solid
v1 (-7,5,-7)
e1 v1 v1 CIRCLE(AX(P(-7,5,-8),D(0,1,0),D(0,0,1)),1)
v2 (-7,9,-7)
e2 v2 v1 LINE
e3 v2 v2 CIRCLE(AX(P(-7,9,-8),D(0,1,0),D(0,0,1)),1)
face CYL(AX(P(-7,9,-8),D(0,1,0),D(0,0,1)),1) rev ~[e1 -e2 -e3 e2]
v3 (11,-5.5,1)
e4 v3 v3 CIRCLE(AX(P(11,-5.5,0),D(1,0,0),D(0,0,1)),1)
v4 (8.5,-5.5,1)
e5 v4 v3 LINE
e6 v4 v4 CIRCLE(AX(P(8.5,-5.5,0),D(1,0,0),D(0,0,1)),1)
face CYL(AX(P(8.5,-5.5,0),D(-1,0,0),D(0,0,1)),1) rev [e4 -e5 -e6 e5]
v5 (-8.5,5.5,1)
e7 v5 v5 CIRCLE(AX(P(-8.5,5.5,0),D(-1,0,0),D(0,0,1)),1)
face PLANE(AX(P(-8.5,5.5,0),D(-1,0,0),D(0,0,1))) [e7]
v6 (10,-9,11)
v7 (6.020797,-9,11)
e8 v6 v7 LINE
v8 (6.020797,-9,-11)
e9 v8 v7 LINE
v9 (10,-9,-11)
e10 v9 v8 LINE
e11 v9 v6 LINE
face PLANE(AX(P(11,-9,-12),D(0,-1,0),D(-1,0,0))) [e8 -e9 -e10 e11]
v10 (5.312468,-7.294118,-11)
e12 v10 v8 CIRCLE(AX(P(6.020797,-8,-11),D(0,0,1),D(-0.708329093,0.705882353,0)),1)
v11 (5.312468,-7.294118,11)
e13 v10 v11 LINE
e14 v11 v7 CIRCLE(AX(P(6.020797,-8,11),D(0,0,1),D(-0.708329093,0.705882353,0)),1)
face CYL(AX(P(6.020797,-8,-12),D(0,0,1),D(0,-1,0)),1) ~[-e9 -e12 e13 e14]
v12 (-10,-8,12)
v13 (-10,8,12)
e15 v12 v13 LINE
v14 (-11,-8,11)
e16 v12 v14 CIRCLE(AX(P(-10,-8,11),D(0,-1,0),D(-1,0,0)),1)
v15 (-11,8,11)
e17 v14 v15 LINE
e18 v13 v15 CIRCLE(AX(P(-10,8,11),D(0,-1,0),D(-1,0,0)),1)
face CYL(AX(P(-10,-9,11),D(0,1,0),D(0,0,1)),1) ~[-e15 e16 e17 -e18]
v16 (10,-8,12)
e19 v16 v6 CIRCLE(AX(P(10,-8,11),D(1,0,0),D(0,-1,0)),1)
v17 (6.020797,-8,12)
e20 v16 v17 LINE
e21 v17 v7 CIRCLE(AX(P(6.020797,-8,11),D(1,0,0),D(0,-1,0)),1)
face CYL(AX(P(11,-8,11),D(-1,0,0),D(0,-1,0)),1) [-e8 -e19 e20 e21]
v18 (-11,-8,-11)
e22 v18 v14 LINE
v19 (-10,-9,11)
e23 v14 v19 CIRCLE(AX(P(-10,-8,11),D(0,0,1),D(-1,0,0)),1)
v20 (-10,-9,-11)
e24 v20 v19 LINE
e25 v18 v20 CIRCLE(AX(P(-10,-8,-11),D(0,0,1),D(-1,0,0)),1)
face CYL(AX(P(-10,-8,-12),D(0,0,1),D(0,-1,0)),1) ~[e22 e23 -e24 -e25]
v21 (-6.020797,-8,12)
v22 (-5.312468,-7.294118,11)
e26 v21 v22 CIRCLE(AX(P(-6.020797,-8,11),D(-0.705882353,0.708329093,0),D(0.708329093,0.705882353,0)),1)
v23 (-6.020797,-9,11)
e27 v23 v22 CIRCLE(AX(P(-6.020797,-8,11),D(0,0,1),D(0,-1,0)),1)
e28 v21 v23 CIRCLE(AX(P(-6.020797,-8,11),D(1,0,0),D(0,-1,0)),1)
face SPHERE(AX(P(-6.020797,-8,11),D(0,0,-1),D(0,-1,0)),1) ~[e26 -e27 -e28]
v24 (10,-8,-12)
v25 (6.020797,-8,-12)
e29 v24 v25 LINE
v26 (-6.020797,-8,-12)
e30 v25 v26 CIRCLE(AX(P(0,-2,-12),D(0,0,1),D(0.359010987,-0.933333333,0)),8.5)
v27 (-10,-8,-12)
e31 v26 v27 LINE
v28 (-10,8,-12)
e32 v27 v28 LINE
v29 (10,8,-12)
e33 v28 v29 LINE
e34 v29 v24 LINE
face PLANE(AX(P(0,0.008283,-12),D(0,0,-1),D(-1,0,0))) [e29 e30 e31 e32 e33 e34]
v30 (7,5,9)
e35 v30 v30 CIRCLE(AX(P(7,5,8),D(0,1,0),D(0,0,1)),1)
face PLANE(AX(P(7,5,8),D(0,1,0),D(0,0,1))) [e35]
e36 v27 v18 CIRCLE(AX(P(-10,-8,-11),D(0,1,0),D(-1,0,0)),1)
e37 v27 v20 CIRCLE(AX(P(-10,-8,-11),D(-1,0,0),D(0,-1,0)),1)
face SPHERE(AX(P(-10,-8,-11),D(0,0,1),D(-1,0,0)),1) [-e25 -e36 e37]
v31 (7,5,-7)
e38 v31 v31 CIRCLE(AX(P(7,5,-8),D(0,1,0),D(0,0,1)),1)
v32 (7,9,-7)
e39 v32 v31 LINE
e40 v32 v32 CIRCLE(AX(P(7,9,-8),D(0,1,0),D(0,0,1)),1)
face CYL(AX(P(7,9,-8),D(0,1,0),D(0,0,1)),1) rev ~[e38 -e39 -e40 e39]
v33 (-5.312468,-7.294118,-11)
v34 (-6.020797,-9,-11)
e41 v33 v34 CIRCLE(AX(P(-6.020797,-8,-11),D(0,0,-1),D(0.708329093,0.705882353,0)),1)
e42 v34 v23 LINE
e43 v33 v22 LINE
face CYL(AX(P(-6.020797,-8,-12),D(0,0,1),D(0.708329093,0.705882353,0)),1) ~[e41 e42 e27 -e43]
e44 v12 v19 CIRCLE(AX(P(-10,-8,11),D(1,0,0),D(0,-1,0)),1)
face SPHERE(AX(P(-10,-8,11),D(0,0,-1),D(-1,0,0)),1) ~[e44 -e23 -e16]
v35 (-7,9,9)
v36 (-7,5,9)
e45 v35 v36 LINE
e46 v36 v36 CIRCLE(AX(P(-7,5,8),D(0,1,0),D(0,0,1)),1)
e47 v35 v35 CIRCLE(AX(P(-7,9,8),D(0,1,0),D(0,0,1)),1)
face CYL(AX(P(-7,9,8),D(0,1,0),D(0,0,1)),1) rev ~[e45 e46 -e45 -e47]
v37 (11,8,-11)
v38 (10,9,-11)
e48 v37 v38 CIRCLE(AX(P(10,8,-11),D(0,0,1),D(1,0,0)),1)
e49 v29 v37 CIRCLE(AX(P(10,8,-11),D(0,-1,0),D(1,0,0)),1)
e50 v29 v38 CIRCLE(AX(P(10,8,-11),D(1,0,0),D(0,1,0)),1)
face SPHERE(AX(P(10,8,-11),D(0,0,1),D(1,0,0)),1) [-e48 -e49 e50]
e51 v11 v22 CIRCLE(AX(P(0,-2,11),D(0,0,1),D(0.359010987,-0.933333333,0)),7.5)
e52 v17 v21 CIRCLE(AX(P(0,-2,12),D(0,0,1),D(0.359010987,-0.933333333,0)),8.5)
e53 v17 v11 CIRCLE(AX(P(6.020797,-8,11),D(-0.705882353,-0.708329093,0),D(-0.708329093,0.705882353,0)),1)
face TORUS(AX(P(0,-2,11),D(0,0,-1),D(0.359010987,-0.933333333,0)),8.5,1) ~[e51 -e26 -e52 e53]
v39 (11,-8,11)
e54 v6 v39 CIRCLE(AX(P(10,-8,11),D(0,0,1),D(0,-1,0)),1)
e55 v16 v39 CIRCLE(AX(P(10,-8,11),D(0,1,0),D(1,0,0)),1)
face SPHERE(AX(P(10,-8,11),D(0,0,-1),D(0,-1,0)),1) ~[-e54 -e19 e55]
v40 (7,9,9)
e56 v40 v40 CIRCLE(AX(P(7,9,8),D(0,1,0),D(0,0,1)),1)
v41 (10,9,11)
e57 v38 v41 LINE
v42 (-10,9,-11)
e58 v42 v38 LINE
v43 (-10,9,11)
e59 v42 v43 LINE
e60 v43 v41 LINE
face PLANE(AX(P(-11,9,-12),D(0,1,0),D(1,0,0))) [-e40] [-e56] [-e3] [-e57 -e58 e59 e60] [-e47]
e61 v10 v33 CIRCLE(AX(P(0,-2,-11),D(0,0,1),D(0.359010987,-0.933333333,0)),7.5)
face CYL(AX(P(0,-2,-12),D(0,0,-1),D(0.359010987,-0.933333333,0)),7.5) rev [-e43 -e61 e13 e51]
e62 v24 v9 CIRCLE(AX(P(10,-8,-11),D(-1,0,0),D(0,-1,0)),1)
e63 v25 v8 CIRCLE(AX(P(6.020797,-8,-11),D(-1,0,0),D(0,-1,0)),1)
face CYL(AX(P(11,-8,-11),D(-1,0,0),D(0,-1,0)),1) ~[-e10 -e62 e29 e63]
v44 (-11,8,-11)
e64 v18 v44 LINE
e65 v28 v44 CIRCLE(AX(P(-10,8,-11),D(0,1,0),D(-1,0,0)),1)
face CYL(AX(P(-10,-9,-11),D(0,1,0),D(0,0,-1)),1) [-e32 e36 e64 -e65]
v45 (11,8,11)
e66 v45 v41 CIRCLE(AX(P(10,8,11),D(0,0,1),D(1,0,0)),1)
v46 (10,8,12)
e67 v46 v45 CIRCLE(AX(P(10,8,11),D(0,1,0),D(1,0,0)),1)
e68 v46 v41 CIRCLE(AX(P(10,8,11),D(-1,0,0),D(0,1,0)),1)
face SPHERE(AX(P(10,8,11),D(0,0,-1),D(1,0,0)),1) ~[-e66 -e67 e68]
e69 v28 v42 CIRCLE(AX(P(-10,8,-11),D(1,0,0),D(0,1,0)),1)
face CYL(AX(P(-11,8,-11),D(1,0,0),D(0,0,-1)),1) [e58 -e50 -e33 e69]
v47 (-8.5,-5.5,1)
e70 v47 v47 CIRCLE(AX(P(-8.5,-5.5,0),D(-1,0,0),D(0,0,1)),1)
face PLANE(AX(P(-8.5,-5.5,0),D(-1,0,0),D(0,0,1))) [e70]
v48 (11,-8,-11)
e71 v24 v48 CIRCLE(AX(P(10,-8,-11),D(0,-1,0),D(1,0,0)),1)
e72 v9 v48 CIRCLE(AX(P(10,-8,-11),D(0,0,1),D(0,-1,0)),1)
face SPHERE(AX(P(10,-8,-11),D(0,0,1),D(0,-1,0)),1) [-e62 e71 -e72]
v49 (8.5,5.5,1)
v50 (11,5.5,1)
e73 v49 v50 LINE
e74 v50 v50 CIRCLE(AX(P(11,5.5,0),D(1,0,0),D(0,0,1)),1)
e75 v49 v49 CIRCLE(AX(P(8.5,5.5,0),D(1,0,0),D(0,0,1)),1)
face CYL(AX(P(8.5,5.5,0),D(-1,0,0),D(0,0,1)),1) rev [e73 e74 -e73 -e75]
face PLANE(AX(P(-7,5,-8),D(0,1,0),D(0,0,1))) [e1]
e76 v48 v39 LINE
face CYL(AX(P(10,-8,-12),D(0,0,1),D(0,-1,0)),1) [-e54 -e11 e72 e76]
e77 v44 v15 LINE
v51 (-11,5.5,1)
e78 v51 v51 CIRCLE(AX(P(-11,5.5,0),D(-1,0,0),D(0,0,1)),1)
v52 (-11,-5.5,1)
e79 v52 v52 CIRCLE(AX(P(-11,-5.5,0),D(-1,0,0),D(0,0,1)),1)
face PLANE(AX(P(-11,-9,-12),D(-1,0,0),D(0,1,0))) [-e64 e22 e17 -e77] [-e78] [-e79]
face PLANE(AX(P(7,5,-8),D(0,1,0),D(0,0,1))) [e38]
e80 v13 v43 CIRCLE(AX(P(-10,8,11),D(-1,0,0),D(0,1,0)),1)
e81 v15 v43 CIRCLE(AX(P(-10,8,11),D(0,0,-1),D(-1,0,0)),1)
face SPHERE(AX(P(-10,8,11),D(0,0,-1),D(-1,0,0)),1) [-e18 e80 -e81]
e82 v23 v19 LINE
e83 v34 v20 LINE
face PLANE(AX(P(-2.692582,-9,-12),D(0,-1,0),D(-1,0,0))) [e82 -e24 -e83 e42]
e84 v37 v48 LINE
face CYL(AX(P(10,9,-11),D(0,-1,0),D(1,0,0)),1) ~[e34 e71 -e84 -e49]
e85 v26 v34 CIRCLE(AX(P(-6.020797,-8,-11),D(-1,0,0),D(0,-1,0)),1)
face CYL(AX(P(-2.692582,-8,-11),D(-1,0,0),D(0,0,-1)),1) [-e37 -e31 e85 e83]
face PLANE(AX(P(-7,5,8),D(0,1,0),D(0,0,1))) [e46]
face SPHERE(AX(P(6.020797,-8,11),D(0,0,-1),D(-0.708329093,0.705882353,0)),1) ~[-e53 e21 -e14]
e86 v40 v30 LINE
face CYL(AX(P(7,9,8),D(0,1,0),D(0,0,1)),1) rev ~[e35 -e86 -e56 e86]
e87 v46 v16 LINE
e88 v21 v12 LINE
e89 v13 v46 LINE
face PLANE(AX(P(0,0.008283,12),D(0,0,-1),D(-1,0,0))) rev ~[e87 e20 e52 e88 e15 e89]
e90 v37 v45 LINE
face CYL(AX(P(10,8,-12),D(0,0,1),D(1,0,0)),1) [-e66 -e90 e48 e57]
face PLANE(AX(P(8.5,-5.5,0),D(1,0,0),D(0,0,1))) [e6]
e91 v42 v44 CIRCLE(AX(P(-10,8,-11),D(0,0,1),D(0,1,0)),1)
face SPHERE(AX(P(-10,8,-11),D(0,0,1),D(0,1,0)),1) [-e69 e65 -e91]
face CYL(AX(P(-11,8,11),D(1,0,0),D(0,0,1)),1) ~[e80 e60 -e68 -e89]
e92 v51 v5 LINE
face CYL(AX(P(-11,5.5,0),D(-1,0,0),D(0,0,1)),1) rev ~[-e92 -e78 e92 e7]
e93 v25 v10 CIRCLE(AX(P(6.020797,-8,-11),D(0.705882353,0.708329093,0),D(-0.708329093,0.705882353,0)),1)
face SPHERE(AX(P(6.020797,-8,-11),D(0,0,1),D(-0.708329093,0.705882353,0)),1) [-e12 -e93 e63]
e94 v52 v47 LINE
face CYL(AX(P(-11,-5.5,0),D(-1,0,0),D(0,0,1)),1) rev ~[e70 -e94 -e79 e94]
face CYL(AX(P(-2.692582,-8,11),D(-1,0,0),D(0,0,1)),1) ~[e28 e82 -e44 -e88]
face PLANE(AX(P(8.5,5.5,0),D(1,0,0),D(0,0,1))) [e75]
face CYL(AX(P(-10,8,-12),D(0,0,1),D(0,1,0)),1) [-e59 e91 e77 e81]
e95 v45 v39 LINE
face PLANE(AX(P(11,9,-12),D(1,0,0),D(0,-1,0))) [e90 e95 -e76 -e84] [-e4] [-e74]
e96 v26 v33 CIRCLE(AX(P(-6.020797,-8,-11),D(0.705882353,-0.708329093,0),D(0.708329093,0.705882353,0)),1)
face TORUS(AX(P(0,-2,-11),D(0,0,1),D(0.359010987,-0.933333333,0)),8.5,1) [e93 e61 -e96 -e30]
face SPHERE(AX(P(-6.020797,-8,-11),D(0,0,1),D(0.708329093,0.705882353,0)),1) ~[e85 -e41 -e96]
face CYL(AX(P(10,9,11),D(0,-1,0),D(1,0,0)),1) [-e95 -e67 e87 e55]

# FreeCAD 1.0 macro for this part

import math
import FreeCAD as App
import Part
import Sketcher


def edges_at(feature, points):
    """Names of the edges that pass closest to the given points."""
    edges = feature.Shape.Edges
    near = lambda p: min(range(len(edges)), key=lambda i: edges[i].distToShape(Part.Vertex(*p))[0])
    return sorted({f"Edge{near(p) + 1}" for p in points})

doc = App.newDocument("Part")
params = doc.addObject("Spreadsheet::Sheet", "Params")
for row, (alias, value) in enumerate([
    ("sketch1_radius", "7.5 mm"),
    ("sketch1_width", "22 mm"),
    ("sketch1_height", "18 mm"),
    ("pad1_length", "12 mm"),
    ("pad1_length2", "12 mm"),
    ("sketch2_diameter", "2 mm"),
    ("pocket1_length", "4 mm"),
    ("fillet_radius", "1 mm"),
    ("sketch3_diameter", "2 mm"),
    ("pocket2_length", "2.5 mm"),
    ("sketch4_diameter", "2 mm"),
    ("pocket3_length", "2.5 mm"),
], start=1):
    params.set(f"A{row}", alias)
    params.set(f"B{row}", "=" + value)
    params.setAlias(f"B{row}", alias)

body = doc.addObject("PartDesign::Body", "Body")

# Sketch on XY plane
sketch1 = doc.addObject("Sketcher::SketchObject", "Sketch")
body.addObject(sketch1)
sketch1.AttachmentSupport = (doc.XY_Plane, [""])
sketch1.MapMode = "FlatFace"
sketch1.addGeometry(Part.LineSegment(App.Vector(3, -9, 0), App.Vector(11, -9, 0)), False)
sketch1.addGeometry(Part.LineSegment(App.Vector(11, -9, 0), App.Vector(11, 9, 0)), False)
sketch1.addGeometry(Part.LineSegment(App.Vector(11, 9, 0), App.Vector(-11, 9, 0)), False)
sketch1.addGeometry(Part.LineSegment(App.Vector(-11, 9, 0), App.Vector(-11, -9, 0)), False)
sketch1.addGeometry(Part.LineSegment(App.Vector(-11, -9, 0), App.Vector(-3, -9, 0)), False)
sketch1.addGeometry(Part.ArcOfCircle(Part.Circle(App.Vector(0, -2, 0), App.Vector(0, 0, 1), 8), math.radians(-69), math.radians(249)), False)
sketch1.addConstraint(Sketcher.Constraint("Coincident", 0, 2, 1, 1))
sketch1.addConstraint(Sketcher.Constraint("Coincident", 1, 2, 2, 1))
sketch1.addConstraint(Sketcher.Constraint("Coincident", 2, 2, 3, 1))
sketch1.addConstraint(Sketcher.Constraint("Coincident", 3, 2, 4, 1))
sketch1.addConstraint(Sketcher.Constraint("Coincident", 4, 2, 5, 2))
sketch1.addConstraint(Sketcher.Constraint("Coincident", 5, 1, 0, 1))
sketch1.addConstraint(Sketcher.Constraint("Horizontal", 0))
sketch1.addConstraint(Sketcher.Constraint("Vertical", 1))
sketch1.addConstraint(Sketcher.Constraint("Horizontal", 2))
sketch1.addConstraint(Sketcher.Constraint("Vertical", 3))
sketch1.addConstraint(Sketcher.Constraint("Horizontal", 4))
sketch1.addConstraint(Sketcher.Constraint("Symmetric", 0, 2, 2, 2, -1, 1))
sketch1.addConstraint(Sketcher.Constraint("Symmetric", 4, 2, 5, 1, -2))
sketch1.addConstraint(Sketcher.Constraint("Radius", 5, 7.5))
sketch1.addConstraint(Sketcher.Constraint("DistanceX", 2, 2, 2, 1, 22.0))
sketch1.addConstraint(Sketcher.Constraint("DistanceY", 1, 1, 1, 2, 18.0))
sketch1.addConstraint(Sketcher.Constraint("DistanceY", 5, 3, -1, 1, 2.0))
sketch1.setExpression("Constraints[13]", "Params.sketch1_radius")
sketch1.setExpression("Constraints[14]", "Params.sketch1_width")
sketch1.setExpression("Constraints[15]", "Params.sketch1_height")
pad1 = doc.addObject("PartDesign::Pad", "Pad")
body.addObject(pad1)
pad1.Profile = sketch1
pad1.Type = "TwoLengths"
pad1.setExpression("Length", "Params.pad1_length")
pad1.setExpression("Length2", "Params.pad1_length2")

# Sketch on XZ plane
sketch2 = doc.addObject("Sketcher::SketchObject", "Sketch001")
body.addObject(sketch2)
sketch2.AttachmentSupport = (doc.XZ_Plane, [""])
sketch2.MapMode = "FlatFace"
sketch2.AttachmentOffset = App.Placement(App.Vector(0, 0, -9), App.Rotation())
sketch2.addGeometry(Part.Circle(App.Vector(-7, -8, 0), App.Vector(0, 0, 1), 1), False)
sketch2.addGeometry(Part.Circle(App.Vector(7, -8, 0), App.Vector(0, 0, 1), 1), False)
sketch2.addGeometry(Part.Circle(App.Vector(7, 8, 0), App.Vector(0, 0, 1), 1), False)
sketch2.addGeometry(Part.Circle(App.Vector(-7, 8, 0), App.Vector(0, 0, 1), 1), False)
sketch2.addConstraint(Sketcher.Constraint("Equal", 0, 1))
sketch2.addConstraint(Sketcher.Constraint("Equal", 1, 2))
sketch2.addConstraint(Sketcher.Constraint("Equal", 2, 3))
sketch2.addConstraint(Sketcher.Constraint("Symmetric", 0, 3, 2, 3, -1, 1))
sketch2.addConstraint(Sketcher.Constraint("Symmetric", 1, 3, 3, 3, -1, 1))
sketch2.addConstraint(Sketcher.Constraint("Symmetric", 0, 3, 1, 3, -2))
sketch2.addConstraint(Sketcher.Constraint("Diameter", 0, 2.0))
sketch2.addConstraint(Sketcher.Constraint("DistanceX", 0, 3, -1, 1, 7.0))
sketch2.addConstraint(Sketcher.Constraint("DistanceY", 0, 3, -1, 1, 8.0))
sketch2.setExpression("Constraints[6]", "Params.sketch2_diameter")
pocket1 = doc.addObject("PartDesign::Pocket", "Pocket")
body.addObject(pocket1)
pocket1.Profile = sketch2
pocket1.setExpression("Length", "Params.pocket1_length")
pocket1.Reversed = True
doc.recompute()

fillet = doc.addObject("PartDesign::Fillet", "Fillet")
body.addObject(fillet)
fillet.Base = (pocket1, edges_at(pocket1, [
    (-11, 9, 0),
    (11, 9, 0),
    (11, -9, 0),
    (2.693, -9, 0),
    (-2.693, -9, 0),
    (-11, -9, 0),
    (0, 5.5, -12),
    (6.846, -9, -12),
    (-11, 0, 12),
    (-6.846, -9, 12),
    (0, 5.5, 12),
    (6.846, -9, 12),
    (11, 0, 12),
    (0, 9, 12),
    (11, 0, -12),
    (0, 9, -12),
    (-11, 0, -12),
    (-6.846, -9, -12),
]))
fillet.setExpression("Radius", "Params.fillet_radius")

# Sketch on YZ plane
sketch3 = doc.addObject("Sketcher::SketchObject", "Sketch002")
body.addObject(sketch3)
sketch3.AttachmentSupport = (doc.YZ_Plane, [""])
sketch3.MapMode = "FlatFace"
sketch3.AttachmentOffset = App.Placement(App.Vector(0, 0, -11), App.Rotation())
sketch3.addGeometry(Part.Circle(App.Vector(5.5, 0, 0), App.Vector(0, 0, 1), 1), False)
sketch3.addGeometry(Part.Circle(App.Vector(-5.5, 0, 0), App.Vector(0, 0, 1), 1), False)
sketch3.addConstraint(Sketcher.Constraint("Equal", 0, 1))
sketch3.addConstraint(Sketcher.Constraint("Symmetric", 0, 3, 1, 3, -1, 1))
sketch3.addConstraint(Sketcher.Constraint("PointOnObject", 0, 3, -1))
sketch3.addConstraint(Sketcher.Constraint("Diameter", 0, 2.0))
sketch3.addConstraint(Sketcher.Constraint("DistanceX", 1, 3, 0, 3, 11.0))
sketch3.setExpression("Constraints[3]", "Params.sketch3_diameter")
pocket2 = doc.addObject("PartDesign::Pocket", "Pocket001")
body.addObject(pocket2)
pocket2.Profile = sketch3
pocket2.setExpression("Length", "Params.pocket2_length")
pocket2.Reversed = True

# Sketch on YZ plane
sketch4 = doc.addObject("Sketcher::SketchObject", "Sketch003")
body.addObject(sketch4)
sketch4.AttachmentSupport = (doc.YZ_Plane, [""])
sketch4.MapMode = "FlatFace"
sketch4.AttachmentOffset = App.Placement(App.Vector(0, 0, 8.5), App.Rotation())
sketch4.addGeometry(Part.Circle(App.Vector(5.5, 0, 0), App.Vector(0, 0, 1), 1), False)
sketch4.addGeometry(Part.Circle(App.Vector(-5.5, 0, 0), App.Vector(0, 0, 1), 1), False)
sketch4.addConstraint(Sketcher.Constraint("Equal", 0, 1))
sketch4.addConstraint(Sketcher.Constraint("Symmetric", 0, 3, 1, 3, -1, 1))
sketch4.addConstraint(Sketcher.Constraint("PointOnObject", 0, 3, -1))
sketch4.addConstraint(Sketcher.Constraint("Diameter", 0, 2.0))
sketch4.addConstraint(Sketcher.Constraint("DistanceX", 1, 3, 0, 3, 11.0))
sketch4.setExpression("Constraints[3]", "Params.sketch4_diameter")
pocket3 = doc.addObject("PartDesign::Pocket", "Pocket002")
body.addObject(pocket3)
pocket3.Profile = sketch4
pocket3.setExpression("Length", "Params.pocket3_length")
pocket3.Reversed = True

doc.recompute()
